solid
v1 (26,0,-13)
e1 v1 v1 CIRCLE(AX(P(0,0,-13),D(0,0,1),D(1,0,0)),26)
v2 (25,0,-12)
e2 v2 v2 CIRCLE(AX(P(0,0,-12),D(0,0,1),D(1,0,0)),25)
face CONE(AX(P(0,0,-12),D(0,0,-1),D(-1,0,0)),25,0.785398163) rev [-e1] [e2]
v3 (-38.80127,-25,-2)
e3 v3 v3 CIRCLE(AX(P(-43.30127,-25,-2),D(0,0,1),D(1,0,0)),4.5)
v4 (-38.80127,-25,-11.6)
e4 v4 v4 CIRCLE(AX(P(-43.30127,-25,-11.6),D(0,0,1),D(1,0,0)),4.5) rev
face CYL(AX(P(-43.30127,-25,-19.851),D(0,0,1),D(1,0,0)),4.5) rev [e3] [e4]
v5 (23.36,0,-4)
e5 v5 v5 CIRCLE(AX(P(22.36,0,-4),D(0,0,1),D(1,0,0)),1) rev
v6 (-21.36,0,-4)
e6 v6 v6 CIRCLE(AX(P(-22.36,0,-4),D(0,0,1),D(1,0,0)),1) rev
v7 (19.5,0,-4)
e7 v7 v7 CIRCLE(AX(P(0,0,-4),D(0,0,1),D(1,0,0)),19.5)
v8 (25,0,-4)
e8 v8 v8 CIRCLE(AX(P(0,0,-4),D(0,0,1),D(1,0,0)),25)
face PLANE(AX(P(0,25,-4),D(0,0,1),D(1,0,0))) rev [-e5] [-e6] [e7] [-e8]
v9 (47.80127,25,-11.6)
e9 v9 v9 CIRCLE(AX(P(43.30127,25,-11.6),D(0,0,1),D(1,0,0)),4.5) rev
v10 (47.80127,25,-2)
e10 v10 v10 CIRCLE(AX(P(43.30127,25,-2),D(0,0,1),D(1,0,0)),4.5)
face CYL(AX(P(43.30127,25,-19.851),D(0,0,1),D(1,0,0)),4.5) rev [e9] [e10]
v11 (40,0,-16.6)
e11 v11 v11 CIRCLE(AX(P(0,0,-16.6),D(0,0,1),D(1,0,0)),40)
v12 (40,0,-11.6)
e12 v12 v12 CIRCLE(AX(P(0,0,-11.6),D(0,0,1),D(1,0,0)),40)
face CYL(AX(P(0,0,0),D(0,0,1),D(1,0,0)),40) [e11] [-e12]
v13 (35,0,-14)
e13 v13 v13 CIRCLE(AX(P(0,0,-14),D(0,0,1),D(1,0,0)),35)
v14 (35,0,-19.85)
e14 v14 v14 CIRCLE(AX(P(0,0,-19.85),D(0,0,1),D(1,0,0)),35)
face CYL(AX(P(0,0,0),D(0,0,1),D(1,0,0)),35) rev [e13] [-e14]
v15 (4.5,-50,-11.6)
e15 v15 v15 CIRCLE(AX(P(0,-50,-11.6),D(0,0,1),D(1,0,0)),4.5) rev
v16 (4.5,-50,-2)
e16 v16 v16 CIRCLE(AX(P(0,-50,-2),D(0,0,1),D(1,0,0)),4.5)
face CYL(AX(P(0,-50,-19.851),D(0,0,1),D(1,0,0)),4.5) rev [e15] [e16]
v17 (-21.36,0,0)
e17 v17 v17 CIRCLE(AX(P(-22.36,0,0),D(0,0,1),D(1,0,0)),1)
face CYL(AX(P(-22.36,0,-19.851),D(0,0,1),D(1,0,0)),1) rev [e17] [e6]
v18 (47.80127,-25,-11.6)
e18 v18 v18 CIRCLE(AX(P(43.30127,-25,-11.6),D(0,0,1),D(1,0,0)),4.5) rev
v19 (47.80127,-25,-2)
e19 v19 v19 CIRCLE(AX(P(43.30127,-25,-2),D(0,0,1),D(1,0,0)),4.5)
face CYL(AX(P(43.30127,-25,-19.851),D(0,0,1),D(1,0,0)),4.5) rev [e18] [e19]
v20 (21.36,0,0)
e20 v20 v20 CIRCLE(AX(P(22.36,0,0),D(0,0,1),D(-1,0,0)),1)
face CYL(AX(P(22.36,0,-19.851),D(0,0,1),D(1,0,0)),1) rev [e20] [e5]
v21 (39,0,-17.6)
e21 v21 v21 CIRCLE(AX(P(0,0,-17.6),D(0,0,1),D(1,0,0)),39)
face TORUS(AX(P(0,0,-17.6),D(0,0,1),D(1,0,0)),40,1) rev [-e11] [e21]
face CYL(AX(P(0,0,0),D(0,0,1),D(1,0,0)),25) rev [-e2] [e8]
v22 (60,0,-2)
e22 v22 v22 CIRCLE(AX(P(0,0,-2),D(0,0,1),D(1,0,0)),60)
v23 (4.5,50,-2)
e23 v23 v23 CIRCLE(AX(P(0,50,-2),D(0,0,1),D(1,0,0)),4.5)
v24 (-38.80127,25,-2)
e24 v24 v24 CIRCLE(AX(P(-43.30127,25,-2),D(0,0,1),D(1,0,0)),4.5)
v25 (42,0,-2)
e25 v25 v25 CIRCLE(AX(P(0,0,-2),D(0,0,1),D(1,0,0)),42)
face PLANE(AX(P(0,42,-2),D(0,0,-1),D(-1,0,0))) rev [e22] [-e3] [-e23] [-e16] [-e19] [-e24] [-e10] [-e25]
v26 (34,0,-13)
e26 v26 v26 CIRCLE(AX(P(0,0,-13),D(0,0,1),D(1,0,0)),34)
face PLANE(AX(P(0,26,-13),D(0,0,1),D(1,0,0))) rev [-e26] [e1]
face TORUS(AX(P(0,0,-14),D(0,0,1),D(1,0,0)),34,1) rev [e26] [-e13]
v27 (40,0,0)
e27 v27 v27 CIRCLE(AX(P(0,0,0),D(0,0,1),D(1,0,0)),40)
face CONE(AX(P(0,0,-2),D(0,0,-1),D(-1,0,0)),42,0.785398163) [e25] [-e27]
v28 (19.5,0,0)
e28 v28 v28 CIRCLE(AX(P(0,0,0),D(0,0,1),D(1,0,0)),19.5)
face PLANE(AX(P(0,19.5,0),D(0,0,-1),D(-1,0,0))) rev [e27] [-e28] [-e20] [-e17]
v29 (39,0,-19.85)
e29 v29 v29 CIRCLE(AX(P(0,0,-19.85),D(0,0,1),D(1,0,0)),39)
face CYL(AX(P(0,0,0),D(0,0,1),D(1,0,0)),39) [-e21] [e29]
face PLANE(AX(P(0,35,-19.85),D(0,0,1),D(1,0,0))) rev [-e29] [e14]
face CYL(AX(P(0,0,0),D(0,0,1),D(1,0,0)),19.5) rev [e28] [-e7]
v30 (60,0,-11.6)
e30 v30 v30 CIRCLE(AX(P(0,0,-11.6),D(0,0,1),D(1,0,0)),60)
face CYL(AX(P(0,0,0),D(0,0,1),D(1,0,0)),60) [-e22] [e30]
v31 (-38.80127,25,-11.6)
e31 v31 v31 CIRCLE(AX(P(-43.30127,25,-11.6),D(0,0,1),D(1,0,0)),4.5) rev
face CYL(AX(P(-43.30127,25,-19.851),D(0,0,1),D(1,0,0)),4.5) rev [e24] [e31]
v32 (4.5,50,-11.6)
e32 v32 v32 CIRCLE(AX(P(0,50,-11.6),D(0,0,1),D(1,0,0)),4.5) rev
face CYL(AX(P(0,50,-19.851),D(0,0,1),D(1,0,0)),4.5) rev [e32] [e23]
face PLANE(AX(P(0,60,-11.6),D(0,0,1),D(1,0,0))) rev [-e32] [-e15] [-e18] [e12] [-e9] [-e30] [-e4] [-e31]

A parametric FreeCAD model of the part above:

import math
import FreeCAD as App
import Part
import Sketcher
from FreeCAD import Vector
Q = App.Units.Quantity

doc = App.newDocument("Part")
body = doc.addObject("PartDesign::Body", "Body")

# Sketch on YZ plane
sketch1 = body.newObject("Sketcher::SketchObject", "Sketch")
sketch1.AttachmentSupport = (doc.getObject("YZ_Plane"), [""])
sketch1.MapMode = "FlatFace"
sketch1.addGeometry([
    Part.LineSegment(Vector(40, 0, 0), Vector(19.5, 0, 0)),  # 0
    Part.LineSegment(Vector(19.5, 0, 0), Vector(19.5, -4, 0)),  # 1
    Part.LineSegment(Vector(19.5, -4, 0), Vector(25, -4, 0)),  # 2
    Part.LineSegment(Vector(25, -4, 0), Vector(25, -12, 0)),  # 3
    Part.LineSegment(Vector(25, -12, 0), Vector(26, -13, 0)),  # 4
    Part.LineSegment(Vector(26, -13, 0), Vector(34, -13, 0)),  # 5
    Part.ArcOfCircle(Part.Circle(Vector(34, -14, 0), Vector(0, 0, 1), 1), math.radians(0), math.radians(90)),  # 6
    Part.LineSegment(Vector(35, -14, 0), Vector(35, -19.9, 0)),  # 7
    Part.LineSegment(Vector(35, -19.9, 0), Vector(39, -19.9, 0)),  # 8
    Part.LineSegment(Vector(39, -19.9, 0), Vector(39, -17.6, 0)),  # 9
    Part.ArcOfCircle(Part.Circle(Vector(40, -17.6, 0), Vector(0, 0, 1), 1), math.radians(90), math.radians(180)),  # 10
    Part.LineSegment(Vector(40, -16.6, 0), Vector(40, -11.6, 0)),  # 11
    Part.LineSegment(Vector(40, -11.6, 0), Vector(60, -11.6, 0)),  # 12
    Part.LineSegment(Vector(60, -11.6, 0), Vector(60, -2, 0)),  # 13
    Part.LineSegment(Vector(60, -2, 0), Vector(42, -2, 0)),  # 14
    Part.LineSegment(Vector(42, -2, 0), Vector(40, 0, 0)),  # 15
], False)
sketch1.addConstraint([
    Sketcher.Constraint("Coincident", 0, 2, 1, 1),
    Sketcher.Constraint("Coincident", 1, 2, 2, 1),
    Sketcher.Constraint("Coincident", 2, 2, 3, 1),
    Sketcher.Constraint("Coincident", 3, 2, 4, 1),
    Sketcher.Constraint("Coincident", 4, 2, 5, 1),
    Sketcher.Constraint("Tangent", 5, 2, 6, 2),
    Sketcher.Constraint("Tangent", 6, 1, 7, 1),
    Sketcher.Constraint("Coincident", 7, 2, 8, 1),
    Sketcher.Constraint("Coincident", 8, 2, 9, 1),
    Sketcher.Constraint("Tangent", 9, 2, 10, 2),
    Sketcher.Constraint("Coincident", 10, 1, 11, 1),
    Sketcher.Constraint("Coincident", 11, 2, 12, 1),
    Sketcher.Constraint("Coincident", 12, 2, 13, 1),
    Sketcher.Constraint("Coincident", 13, 2, 14, 1),
    Sketcher.Constraint("Coincident", 14, 2, 15, 1),
    Sketcher.Constraint("Coincident", 15, 2, 0, 1),
    Sketcher.Constraint("Horizontal", 0),
    Sketcher.Constraint("Vertical", 1),
    Sketcher.Constraint("Horizontal", 2),
    Sketcher.Constraint("Vertical", 3),
    Sketcher.Constraint("Horizontal", 5),
    Sketcher.Constraint("Vertical", 7),
    Sketcher.Constraint("Horizontal", 8),
    Sketcher.Constraint("Vertical", 9),
    Sketcher.Constraint("Vertical", 11),
    Sketcher.Constraint("Horizontal", 12),
    Sketcher.Constraint("Vertical", 13),
    Sketcher.Constraint("Horizontal", 14),
    Sketcher.Constraint("Equal", 6, 10),
    Sketcher.Constraint("PointOnObject", 0, 2, -1),
    Sketcher.Constraint("Parallel", 4, 15),
    Sketcher.Constraint("Vertical", 11, 2, 15, 2),
    Sketcher.Constraint("Equal", 8, 1),
    Sketcher.Constraint("Equal", 5, 3),
    Sketcher.Constraint("Radius", 6, Q("1 mm")),
    Sketcher.Constraint("DistanceX", 5, 1, 5, 2, Q("8 mm")),
    Sketcher.Constraint("DistanceX", 8, 1, 8, 2, Q("4 mm")),
    Sketcher.Constraint("DistanceX", 12, 1, 12, 2, Q("20 mm")),
    Sketcher.Constraint("DistanceX", 14, 2, 14, 1, Q("18 mm")),
    Sketcher.Constraint("DistanceY", 11, 1, 11, 2, Q("5 mm")),
    Sketcher.Constraint("Angle", 4, Q("-45 deg")),
    Sketcher.Constraint("DistanceX", 0, 2, 0, 1, Q("20.5 mm")),
    Sketcher.Constraint("DistanceX", 2, 1, 2, 2, Q("5.5 mm")),
    Sketcher.Constraint("DistanceY", 13, 1, 13, 2, Q("9.6 mm")),
    Sketcher.Constraint("DistanceX", -1, 1, 6, 3, Q("34 mm")),
    Sketcher.Constraint("DistanceY", 6, 3, -1, 1, Q("14 mm")),
    Sketcher.Constraint("DistanceY", 7, 2, 7, 1, Q("5.85 mm")),
])
revolution = body.newObject("PartDesign::Revolution", "Revolution")
revolution.Profile = sketch1
revolution.ReferenceAxis = (sketch1, ["V_Axis"])
revolution.Angle = 360

# Sketch on XY plane
sketch2 = body.newObject("Sketcher::SketchObject", "Sketch001")
sketch2.AttachmentSupport = (doc.getObject("XY_Plane"), [""])
sketch2.MapMode = "FlatFace"
sketch2.AttachmentOffset = App.Placement(Vector(0, 0, -2), App.Rotation())
sketch2.addGeometry(Part.Circle(Vector(0, -50, 0), Vector(0, 0, 1), 4.5), False)
sketch2.addConstraint([
    Sketcher.Constraint("PointOnObject", 0, 3, -2),
    Sketcher.Constraint("Diameter", 0, Q("9 mm")),
    Sketcher.Constraint("DistanceY", 0, 3, -1, 1, Q("50 mm")),
])
pocket1 = body.newObject("PartDesign::Pocket", "Pocket")
pocket1.Profile = sketch2
pocket1.Type = "UpToFirst"

# Sketch on XY plane
sketch3 = body.newObject("Sketcher::SketchObject", "Sketch002")
sketch3.AttachmentSupport = (doc.getObject("XY_Plane"), [""])
sketch3.MapMode = "FlatFace"
sketch3.AttachmentOffset = App.Placement(Vector(0, 0, -2), App.Rotation())
sketch3.addGeometry(Part.Circle(Vector(-43.3, -25, 0), Vector(0, 0, 1), 4.5), False)
sketch3.addConstraint([
    Sketcher.Constraint("Diameter", 0, Q("9 mm")),
    Sketcher.Constraint("DistanceY", 0, 3, -1, 1, Q("25 mm")),
    Sketcher.Constraint("DistanceX", 0, 3, -1, 1, Q("43.30127 mm")),
])
pocket2 = body.newObject("PartDesign::Pocket", "Pocket001")
pocket2.Profile = sketch3
pocket2.Type = "UpToFirst"

# Sketch on XY plane
sketch4 = body.newObject("Sketcher::SketchObject", "Sketch003")
sketch4.AttachmentSupport = (doc.getObject("XY_Plane"), [""])
sketch4.MapMode = "FlatFace"
sketch4.AttachmentOffset = App.Placement(Vector(0, 0, -2), App.Rotation())
sketch4.addGeometry(Part.Circle(Vector(-43.3, 25, 0), Vector(0, 0, 1), 4.5), False)
sketch4.addConstraint([
    Sketcher.Constraint("Diameter", 0, Q("9 mm")),
    Sketcher.Constraint("DistanceY", -1, 1, 0, 3, Q("25 mm")),
    Sketcher.Constraint("DistanceX", 0, 3, -1, 1, Q("43.30127 mm")),
])
pocket3 = body.newObject("PartDesign::Pocket", "Pocket002")
pocket3.Profile = sketch4
pocket3.Type = "UpToFirst"

# Sketch on XY plane
sketch5 = body.newObject("Sketcher::SketchObject", "Sketch004")
sketch5.AttachmentSupport = (doc.getObject("XY_Plane"), [""])
sketch5.MapMode = "FlatFace"
sketch5.AttachmentOffset = App.Placement(Vector(0, 0, -2), App.Rotation())
sketch5.addGeometry(Part.Circle(Vector(0, 50, 0), Vector(0, 0, 1), 4.5), False)
sketch5.addConstraint([
    Sketcher.Constraint("PointOnObject", 0, 3, -2),
    Sketcher.Constraint("Diameter", 0, Q("9 mm")),
    Sketcher.Constraint("DistanceY", -1, 1, 0, 3, Q("50 mm")),
])
pocket4 = body.newObject("PartDesign::Pocket", "Pocket003")
pocket4.Profile = sketch5
pocket4.Type = "UpToFirst"

# Sketch on XY plane
sketch6 = body.newObject("Sketcher::SketchObject", "Sketch005")
sketch6.AttachmentSupport = (doc.getObject("XY_Plane"), [""])
sketch6.MapMode = "FlatFace"
sketch6.AttachmentOffset = App.Placement(Vector(0, 0, -2), App.Rotation())
sketch6.addGeometry(Part.Circle(Vector(43.3, 25, 0), Vector(0, 0, 1), 4.5), False)
sketch6.addConstraint([
    Sketcher.Constraint("Diameter", 0, Q("9 mm")),
    Sketcher.Constraint("DistanceY", -1, 1, 0, 3, Q("25 mm")),
    Sketcher.Constraint("DistanceX", -1, 1, 0, 3, Q("43.30127 mm")),
])
pocket5 = body.newObject("PartDesign::Pocket", "Pocket004")
pocket5.Profile = sketch6
pocket5.Type = "UpToFirst"

# Sketch on XY plane
sketch7 = body.newObject("Sketcher::SketchObject", "Sketch006")
sketch7.AttachmentSupport = (doc.getObject("XY_Plane"), [""])
sketch7.MapMode = "FlatFace"
sketch7.AttachmentOffset = App.Placement(Vector(0, 0, -2), App.Rotation())
sketch7.addGeometry(Part.Circle(Vector(43.3, -25, 0), Vector(0, 0, 1), 4.5), False)
sketch7.addConstraint([
    Sketcher.Constraint("Diameter", 0, Q("9 mm")),
    Sketcher.Constraint("DistanceY", 0, 3, -1, 1, Q("25 mm")),
    Sketcher.Constraint("DistanceX", -1, 1, 0, 3, Q("43.30127 mm")),
])
pocket6 = body.newObject("PartDesign::Pocket", "Pocket005")
pocket6.Profile = sketch7
pocket6.Type = "UpToFirst"

# Sketch on XY plane
sketch8 = body.newObject("Sketcher::SketchObject", "Sketch007")
sketch8.AttachmentSupport = (doc.getObject("XY_Plane"), [""])
sketch8.MapMode = "FlatFace"
sketch8.addGeometry(Part.Circle(Vector(-22.4, 0, 0), Vector(0, 0, 1), 1), False)
sketch8.addConstraint([
    Sketcher.Constraint("PointOnObject", 0, 3, -1),
    Sketcher.Constraint("Diameter", 0, Q("2 mm")),
    Sketcher.Constraint("DistanceX", 0, 3, -1, 1, Q("22.36 mm")),
])
pocket7 = body.newObject("PartDesign::Pocket", "Pocket006")
pocket7.Profile = sketch8
pocket7.Type = "UpToFirst"

# Sketch on XY plane
sketch9 = body.newObject("Sketcher::SketchObject", "Sketch008")
sketch9.AttachmentSupport = (doc.getObject("XY_Plane"), [""])
sketch9.MapMode = "FlatFace"
sketch9.addGeometry(Part.Circle(Vector(22.4, 0, 0), Vector(0, 0, 1), 1), False)
sketch9.addConstraint([
    Sketcher.Constraint("PointOnObject", 0, 3, -1),
    Sketcher.Constraint("Diameter", 0, Q("2 mm")),
    Sketcher.Constraint("DistanceX", -1, 1, 0, 3, Q("22.36 mm")),
])
pocket8 = body.newObject("PartDesign::Pocket", "Pocket007")
pocket8.Profile = sketch9
pocket8.Type = "UpToFirst"

doc.recompute()
